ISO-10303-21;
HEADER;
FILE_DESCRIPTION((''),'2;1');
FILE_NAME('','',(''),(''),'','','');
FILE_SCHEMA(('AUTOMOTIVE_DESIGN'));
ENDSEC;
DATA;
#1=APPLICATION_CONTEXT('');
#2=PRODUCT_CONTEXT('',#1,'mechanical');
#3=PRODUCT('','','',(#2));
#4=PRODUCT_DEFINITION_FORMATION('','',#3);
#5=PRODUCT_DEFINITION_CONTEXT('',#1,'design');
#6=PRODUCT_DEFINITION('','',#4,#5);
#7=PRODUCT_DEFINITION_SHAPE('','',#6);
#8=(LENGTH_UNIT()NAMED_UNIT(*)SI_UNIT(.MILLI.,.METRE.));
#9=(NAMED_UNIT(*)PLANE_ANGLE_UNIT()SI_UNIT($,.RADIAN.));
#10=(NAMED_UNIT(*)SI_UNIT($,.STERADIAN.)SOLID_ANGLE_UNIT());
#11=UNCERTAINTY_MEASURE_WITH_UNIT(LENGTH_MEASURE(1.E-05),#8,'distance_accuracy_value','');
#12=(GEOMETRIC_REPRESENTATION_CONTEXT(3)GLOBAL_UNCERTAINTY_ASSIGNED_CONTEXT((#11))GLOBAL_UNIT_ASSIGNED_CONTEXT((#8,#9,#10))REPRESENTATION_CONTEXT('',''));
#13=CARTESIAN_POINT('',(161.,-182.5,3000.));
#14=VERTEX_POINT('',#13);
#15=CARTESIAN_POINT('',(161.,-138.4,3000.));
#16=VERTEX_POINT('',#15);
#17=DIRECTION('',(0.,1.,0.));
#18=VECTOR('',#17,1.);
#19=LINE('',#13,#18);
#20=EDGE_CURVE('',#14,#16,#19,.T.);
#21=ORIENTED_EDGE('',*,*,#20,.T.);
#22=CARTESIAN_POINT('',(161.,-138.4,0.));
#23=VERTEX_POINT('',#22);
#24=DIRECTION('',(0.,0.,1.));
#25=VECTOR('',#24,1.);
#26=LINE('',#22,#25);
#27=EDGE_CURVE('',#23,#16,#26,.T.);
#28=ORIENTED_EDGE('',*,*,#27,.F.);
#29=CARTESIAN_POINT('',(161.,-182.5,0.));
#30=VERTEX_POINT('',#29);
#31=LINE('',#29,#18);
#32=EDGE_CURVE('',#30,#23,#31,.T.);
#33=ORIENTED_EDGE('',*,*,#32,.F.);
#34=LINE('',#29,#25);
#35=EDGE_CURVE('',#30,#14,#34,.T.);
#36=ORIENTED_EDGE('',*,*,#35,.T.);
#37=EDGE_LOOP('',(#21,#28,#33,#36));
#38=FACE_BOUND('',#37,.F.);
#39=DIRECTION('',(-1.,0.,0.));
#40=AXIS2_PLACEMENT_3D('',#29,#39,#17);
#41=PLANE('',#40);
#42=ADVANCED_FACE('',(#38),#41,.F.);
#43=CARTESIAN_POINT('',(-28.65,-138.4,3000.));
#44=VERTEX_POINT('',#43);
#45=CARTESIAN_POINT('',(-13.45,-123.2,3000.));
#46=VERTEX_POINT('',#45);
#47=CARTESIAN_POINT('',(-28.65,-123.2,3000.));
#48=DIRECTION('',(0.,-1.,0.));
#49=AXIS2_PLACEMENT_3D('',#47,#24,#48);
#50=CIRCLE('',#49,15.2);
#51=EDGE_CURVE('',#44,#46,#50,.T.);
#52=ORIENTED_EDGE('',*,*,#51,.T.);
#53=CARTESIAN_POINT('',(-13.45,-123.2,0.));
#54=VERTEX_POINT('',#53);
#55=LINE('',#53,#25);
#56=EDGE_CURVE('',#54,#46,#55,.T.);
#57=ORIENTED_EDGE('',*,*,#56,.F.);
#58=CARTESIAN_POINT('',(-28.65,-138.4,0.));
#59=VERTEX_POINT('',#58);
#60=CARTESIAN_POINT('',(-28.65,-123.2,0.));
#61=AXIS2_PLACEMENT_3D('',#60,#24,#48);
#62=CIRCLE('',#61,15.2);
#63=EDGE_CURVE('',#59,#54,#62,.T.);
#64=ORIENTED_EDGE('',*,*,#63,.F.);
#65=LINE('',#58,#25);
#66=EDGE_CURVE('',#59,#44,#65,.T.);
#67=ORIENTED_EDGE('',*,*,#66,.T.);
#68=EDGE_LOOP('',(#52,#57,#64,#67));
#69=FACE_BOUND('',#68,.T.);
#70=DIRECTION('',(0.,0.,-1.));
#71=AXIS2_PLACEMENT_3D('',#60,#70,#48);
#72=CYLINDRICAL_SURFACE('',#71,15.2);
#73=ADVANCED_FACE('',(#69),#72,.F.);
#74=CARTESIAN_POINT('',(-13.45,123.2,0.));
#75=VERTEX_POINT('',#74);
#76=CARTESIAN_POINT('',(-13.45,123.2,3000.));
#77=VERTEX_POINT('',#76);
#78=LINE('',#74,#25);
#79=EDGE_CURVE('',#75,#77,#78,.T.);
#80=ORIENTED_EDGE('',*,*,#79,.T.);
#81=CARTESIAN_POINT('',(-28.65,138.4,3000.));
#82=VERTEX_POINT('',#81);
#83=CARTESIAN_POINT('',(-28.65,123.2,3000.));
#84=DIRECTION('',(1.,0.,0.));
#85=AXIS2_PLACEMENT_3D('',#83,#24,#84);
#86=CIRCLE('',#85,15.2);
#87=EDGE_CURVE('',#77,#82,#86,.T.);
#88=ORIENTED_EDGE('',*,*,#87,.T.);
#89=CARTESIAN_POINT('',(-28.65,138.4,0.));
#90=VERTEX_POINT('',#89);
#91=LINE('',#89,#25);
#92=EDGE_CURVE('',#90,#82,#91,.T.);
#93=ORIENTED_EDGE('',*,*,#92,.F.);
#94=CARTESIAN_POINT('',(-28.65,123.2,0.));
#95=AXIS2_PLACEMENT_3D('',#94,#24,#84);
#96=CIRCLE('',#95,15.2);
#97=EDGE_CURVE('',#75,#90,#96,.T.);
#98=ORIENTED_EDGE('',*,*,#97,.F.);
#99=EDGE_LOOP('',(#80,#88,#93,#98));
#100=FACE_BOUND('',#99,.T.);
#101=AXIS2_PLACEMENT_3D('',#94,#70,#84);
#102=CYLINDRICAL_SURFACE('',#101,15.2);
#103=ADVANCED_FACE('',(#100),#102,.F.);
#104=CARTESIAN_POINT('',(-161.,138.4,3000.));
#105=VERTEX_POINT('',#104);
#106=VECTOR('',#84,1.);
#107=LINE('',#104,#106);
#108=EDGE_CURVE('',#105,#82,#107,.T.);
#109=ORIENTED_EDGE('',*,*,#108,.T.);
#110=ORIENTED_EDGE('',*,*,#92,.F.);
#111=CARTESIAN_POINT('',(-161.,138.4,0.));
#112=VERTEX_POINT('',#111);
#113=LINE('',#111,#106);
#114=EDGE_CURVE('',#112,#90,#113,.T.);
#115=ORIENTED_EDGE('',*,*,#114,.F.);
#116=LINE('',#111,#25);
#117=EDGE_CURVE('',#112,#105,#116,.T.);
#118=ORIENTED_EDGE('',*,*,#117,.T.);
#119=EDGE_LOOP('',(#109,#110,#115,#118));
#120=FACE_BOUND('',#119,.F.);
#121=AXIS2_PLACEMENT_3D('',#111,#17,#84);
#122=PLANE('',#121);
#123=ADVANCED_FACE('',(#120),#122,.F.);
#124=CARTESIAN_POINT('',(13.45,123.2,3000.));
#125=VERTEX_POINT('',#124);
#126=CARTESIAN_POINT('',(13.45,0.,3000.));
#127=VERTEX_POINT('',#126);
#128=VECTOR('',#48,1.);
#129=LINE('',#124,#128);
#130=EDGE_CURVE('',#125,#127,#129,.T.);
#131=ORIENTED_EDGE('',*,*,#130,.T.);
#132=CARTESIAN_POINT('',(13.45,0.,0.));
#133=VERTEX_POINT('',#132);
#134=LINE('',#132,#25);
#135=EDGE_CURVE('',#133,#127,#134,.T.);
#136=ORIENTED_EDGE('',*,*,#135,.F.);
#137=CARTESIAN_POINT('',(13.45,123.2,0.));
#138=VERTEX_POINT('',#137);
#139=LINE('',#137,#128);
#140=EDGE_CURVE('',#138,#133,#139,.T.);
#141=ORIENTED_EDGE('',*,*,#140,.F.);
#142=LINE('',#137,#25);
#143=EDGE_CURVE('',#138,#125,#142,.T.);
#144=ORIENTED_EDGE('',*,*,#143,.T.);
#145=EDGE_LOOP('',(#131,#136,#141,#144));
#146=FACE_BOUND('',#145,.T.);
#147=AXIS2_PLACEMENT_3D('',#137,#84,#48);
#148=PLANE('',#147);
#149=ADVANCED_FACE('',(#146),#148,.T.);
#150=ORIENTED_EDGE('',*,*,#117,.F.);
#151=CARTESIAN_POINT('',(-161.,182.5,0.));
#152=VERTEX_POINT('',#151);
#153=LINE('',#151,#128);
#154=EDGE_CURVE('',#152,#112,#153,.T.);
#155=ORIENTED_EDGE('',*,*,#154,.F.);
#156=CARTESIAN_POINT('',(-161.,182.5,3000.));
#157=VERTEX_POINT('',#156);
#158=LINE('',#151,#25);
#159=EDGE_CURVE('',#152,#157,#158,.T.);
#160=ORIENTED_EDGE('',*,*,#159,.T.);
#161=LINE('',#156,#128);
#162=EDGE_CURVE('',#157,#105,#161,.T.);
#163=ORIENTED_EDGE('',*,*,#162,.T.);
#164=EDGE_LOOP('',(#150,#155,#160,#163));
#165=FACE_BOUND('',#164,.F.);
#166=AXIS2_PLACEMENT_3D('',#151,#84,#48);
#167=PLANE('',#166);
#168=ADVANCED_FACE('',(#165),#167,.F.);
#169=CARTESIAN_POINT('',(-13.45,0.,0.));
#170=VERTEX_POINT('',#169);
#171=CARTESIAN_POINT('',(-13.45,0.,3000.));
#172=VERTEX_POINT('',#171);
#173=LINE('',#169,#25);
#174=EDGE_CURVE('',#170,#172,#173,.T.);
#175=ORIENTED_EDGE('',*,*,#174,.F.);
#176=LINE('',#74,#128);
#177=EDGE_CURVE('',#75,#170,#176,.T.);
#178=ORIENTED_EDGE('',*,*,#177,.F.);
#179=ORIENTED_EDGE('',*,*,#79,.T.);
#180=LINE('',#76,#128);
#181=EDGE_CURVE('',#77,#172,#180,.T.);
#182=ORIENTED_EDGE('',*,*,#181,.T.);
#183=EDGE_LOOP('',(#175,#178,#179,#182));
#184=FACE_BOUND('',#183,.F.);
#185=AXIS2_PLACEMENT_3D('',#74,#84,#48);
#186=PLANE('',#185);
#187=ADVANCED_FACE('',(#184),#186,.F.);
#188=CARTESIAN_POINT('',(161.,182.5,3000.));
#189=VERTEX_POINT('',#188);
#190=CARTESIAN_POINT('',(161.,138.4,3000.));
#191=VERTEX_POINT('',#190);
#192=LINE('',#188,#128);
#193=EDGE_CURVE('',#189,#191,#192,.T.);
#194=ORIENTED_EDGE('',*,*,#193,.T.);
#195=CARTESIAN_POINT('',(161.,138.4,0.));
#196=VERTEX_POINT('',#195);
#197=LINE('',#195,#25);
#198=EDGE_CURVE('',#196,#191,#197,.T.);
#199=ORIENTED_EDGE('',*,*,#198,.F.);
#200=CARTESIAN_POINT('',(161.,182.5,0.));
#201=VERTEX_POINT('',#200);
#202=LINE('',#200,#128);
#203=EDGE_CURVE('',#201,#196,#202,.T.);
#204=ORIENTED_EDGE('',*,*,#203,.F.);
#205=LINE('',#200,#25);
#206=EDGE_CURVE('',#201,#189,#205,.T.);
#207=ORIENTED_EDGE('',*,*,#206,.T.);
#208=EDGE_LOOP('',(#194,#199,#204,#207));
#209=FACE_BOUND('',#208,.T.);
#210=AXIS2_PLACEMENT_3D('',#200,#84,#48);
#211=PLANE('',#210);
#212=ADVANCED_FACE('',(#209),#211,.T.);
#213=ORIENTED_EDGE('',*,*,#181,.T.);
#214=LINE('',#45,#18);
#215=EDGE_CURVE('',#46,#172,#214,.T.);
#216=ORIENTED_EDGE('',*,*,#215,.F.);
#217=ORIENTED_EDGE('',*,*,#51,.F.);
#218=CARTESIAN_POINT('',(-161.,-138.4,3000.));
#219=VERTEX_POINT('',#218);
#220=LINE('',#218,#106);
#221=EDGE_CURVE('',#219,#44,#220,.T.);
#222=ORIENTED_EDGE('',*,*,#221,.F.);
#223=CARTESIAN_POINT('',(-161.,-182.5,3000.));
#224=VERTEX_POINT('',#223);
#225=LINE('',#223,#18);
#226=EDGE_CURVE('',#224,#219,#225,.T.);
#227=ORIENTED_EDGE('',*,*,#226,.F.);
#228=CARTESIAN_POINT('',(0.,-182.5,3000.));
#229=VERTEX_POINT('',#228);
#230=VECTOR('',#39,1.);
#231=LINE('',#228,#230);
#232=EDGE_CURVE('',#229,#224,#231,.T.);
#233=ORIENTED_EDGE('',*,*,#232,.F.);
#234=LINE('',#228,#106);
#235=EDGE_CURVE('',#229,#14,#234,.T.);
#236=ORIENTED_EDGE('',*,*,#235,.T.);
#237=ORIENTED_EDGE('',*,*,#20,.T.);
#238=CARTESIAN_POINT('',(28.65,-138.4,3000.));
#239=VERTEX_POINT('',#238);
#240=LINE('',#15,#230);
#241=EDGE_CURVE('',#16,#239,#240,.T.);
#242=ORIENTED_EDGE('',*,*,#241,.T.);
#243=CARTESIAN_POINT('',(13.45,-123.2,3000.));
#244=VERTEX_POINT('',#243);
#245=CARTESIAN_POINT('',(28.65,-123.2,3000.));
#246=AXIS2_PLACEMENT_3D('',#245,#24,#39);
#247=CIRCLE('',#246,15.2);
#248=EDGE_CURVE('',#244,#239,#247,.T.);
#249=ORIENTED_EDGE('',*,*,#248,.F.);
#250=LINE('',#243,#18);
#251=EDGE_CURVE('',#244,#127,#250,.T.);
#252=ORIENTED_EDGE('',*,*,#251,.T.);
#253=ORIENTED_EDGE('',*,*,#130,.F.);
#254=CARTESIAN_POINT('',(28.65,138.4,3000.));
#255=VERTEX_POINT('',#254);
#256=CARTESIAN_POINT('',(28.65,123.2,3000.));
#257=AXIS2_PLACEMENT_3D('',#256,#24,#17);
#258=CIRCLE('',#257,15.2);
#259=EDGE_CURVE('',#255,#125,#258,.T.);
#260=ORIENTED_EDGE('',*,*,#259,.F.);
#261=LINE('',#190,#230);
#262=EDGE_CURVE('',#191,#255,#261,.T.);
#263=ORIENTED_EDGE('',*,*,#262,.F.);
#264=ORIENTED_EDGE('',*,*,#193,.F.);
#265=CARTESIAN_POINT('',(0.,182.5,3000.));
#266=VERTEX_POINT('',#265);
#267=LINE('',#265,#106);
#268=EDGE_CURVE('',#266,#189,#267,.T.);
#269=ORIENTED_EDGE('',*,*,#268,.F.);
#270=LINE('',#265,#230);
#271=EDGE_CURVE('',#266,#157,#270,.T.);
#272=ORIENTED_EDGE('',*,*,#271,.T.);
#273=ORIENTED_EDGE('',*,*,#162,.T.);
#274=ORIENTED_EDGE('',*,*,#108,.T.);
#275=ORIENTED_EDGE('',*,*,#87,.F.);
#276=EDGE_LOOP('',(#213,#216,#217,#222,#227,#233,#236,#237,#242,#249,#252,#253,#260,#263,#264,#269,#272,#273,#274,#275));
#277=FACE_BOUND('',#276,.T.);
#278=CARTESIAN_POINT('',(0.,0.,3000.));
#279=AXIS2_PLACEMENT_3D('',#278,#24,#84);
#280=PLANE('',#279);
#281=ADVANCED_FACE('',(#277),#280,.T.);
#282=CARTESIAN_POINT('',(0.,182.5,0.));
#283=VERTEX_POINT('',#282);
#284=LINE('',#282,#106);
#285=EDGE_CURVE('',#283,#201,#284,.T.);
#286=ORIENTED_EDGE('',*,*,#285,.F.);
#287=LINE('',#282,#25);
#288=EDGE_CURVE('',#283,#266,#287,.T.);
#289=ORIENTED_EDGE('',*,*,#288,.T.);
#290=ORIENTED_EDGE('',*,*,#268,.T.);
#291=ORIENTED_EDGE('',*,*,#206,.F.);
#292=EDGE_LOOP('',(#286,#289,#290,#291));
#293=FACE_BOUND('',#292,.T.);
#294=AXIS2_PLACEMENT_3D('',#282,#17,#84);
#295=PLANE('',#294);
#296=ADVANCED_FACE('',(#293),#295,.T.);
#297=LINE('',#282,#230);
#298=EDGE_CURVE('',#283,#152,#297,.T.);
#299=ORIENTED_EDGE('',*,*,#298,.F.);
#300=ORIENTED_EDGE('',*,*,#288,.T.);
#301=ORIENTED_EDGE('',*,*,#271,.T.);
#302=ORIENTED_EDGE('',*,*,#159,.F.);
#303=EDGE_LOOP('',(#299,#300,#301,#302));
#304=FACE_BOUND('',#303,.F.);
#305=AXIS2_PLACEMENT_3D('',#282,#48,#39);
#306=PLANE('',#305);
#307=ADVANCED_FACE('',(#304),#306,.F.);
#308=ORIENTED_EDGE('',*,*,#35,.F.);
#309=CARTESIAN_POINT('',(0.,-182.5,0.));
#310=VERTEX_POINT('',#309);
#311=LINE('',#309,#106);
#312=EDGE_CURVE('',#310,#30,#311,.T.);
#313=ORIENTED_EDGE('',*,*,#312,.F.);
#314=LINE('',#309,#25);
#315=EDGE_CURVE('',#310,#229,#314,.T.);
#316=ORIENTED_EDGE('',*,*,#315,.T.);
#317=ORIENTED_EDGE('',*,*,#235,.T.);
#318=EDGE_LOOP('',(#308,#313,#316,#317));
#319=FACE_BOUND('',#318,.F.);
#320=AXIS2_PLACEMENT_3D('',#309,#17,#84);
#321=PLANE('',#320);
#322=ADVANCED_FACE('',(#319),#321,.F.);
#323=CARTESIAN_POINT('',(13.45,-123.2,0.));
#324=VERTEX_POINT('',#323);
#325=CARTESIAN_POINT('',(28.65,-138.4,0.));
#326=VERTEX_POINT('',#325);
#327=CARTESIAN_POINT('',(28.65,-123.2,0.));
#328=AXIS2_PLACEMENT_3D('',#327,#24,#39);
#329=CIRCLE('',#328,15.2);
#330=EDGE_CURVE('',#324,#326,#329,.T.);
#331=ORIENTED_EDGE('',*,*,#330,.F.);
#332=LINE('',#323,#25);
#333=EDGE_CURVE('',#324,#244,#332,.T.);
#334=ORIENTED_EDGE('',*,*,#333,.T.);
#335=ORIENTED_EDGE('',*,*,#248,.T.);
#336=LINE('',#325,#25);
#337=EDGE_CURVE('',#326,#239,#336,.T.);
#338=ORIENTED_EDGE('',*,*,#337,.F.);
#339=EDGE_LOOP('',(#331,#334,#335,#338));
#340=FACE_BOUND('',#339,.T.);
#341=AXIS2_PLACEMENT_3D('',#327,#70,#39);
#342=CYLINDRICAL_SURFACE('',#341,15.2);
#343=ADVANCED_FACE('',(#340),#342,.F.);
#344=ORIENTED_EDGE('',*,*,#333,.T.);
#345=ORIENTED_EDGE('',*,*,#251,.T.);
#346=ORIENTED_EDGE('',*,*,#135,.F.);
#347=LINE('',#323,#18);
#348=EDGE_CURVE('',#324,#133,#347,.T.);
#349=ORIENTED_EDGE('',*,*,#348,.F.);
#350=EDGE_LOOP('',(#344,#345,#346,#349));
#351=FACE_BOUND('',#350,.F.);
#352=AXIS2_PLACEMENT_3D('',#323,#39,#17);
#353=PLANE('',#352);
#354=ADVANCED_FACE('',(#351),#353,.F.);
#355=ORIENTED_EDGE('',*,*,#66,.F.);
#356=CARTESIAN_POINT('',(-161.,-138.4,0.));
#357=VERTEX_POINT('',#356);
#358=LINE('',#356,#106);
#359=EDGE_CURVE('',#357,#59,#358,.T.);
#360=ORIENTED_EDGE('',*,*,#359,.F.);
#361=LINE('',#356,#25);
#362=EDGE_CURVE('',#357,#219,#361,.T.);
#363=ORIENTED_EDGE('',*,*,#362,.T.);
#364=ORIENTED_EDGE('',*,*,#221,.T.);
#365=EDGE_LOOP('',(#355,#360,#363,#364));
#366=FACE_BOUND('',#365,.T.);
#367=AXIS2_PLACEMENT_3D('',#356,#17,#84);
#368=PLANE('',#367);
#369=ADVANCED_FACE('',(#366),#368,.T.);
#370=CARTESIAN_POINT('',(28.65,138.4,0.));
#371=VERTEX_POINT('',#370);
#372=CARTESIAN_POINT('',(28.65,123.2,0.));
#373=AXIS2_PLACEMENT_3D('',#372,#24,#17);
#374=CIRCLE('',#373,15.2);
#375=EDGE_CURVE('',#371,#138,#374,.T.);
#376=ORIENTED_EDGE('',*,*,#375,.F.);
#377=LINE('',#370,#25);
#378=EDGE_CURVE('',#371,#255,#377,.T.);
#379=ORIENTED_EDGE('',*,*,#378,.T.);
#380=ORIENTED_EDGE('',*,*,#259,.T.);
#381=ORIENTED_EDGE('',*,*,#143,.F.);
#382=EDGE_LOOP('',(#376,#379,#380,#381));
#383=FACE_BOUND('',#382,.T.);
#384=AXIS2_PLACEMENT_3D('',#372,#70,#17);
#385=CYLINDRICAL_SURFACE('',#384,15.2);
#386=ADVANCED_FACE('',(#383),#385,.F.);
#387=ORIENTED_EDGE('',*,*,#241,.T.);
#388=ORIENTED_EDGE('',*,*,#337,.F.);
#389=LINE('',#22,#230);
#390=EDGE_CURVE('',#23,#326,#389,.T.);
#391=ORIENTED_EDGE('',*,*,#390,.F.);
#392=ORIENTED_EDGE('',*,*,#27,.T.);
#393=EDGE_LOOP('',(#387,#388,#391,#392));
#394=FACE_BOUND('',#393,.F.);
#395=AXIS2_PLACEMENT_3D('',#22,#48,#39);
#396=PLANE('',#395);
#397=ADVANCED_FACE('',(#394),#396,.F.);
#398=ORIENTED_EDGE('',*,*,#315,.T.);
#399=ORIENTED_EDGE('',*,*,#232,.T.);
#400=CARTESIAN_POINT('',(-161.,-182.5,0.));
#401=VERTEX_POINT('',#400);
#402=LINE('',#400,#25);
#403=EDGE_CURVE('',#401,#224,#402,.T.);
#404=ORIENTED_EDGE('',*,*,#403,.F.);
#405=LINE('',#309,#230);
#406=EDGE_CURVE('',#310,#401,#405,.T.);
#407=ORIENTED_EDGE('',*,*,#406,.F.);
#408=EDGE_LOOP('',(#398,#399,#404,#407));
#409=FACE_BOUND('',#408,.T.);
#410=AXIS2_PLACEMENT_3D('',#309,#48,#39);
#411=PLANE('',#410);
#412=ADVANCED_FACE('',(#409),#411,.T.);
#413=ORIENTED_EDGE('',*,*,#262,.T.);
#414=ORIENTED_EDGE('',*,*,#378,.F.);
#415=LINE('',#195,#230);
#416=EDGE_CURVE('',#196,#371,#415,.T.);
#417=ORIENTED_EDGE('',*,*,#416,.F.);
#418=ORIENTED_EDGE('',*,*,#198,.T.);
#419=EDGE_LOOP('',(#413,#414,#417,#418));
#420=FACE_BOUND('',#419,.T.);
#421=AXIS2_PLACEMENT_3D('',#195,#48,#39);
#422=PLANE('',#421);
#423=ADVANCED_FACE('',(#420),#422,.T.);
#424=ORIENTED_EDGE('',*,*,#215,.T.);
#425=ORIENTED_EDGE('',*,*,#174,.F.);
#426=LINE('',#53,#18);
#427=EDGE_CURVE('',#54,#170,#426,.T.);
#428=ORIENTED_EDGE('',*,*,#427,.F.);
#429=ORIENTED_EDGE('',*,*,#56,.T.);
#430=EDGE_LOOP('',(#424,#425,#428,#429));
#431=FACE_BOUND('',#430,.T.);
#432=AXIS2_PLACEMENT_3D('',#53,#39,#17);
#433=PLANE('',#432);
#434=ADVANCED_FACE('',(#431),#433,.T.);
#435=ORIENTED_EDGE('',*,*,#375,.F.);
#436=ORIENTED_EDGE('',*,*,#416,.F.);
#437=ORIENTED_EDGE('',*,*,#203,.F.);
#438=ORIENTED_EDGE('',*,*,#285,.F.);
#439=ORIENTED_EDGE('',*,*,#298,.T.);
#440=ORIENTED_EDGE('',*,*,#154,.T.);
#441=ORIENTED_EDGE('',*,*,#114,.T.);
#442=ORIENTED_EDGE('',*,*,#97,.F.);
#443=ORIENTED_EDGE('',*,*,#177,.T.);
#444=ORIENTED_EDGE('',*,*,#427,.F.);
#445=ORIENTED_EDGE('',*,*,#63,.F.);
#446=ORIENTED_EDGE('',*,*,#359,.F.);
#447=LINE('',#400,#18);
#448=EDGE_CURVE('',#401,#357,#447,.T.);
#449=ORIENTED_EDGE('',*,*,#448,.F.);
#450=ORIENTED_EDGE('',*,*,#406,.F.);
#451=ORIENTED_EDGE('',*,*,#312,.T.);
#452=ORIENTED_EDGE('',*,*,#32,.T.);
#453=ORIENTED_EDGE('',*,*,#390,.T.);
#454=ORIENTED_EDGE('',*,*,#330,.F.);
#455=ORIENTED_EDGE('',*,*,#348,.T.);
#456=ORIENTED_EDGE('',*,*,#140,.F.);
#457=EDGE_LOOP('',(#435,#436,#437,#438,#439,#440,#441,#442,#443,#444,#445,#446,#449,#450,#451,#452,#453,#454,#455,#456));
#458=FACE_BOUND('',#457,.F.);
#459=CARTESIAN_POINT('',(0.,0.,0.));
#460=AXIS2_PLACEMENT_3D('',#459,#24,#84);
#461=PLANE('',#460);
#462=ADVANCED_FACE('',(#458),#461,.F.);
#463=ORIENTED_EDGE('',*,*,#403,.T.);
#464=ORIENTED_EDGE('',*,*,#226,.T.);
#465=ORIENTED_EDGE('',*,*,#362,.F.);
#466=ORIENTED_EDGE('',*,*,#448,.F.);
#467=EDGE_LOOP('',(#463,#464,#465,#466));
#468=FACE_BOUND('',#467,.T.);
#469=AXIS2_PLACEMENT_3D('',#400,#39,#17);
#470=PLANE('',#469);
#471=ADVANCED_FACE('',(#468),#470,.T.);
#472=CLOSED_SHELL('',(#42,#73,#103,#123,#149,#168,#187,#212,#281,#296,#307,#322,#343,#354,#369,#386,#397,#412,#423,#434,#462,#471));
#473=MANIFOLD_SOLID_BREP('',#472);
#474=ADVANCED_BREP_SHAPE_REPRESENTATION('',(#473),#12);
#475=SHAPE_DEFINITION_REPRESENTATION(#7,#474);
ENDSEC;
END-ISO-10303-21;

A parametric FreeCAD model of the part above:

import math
import FreeCAD as App
import Part
import Sketcher

doc = App.newDocument("Part")
body = doc.addObject("PartDesign::Body", "Body")

# Sketch on XY plane
sketch1 = body.newObject("Sketcher::SketchObject", "Sketch")
sketch1.AttachmentSupport = (doc.getObject("XY_Plane"), [""])
sketch1.MapMode = "FlatFace"
sketch1.addGeometry([
    Part.LineSegment(App.Vector(-161, -138, 0), App.Vector(-161, -182, 0)),  # 0
    Part.LineSegment(App.Vector(-161, -182, 0), App.Vector(161, -182, 0)),  # 1
    Part.LineSegment(App.Vector(161, -182, 0), App.Vector(161, -138, 0)),  # 2
    Part.LineSegment(App.Vector(161, -138, 0), App.Vector(29, -138, 0)),  # 3
    Part.ArcOfCircle(Part.Circle(App.Vector(29, -123, 0), App.Vector(0, 0, 1), 15), math.radians(180), math.radians(270)),  # 4
    Part.LineSegment(App.Vector(13, -123, 0), App.Vector(13, 123, 0)),  # 5
    Part.ArcOfCircle(Part.Circle(App.Vector(29, 123, 0), App.Vector(0, 0, 1), 15), math.radians(90), math.radians(180)),  # 6
    Part.LineSegment(App.Vector(29, 138, 0), App.Vector(161, 138, 0)),  # 7
    Part.LineSegment(App.Vector(161, 138, 0), App.Vector(161, 182, 0)),  # 8
    Part.LineSegment(App.Vector(161, 182, 0), App.Vector(-161, 182, 0)),  # 9
    Part.LineSegment(App.Vector(-161, 182, 0), App.Vector(-161, 138, 0)),  # 10
    Part.LineSegment(App.Vector(-161, 138, 0), App.Vector(-29, 138, 0)),  # 11
    Part.ArcOfCircle(Part.Circle(App.Vector(-29, 123, 0), App.Vector(0, 0, 1), 15), math.radians(0), math.radians(90)),  # 12
    Part.LineSegment(App.Vector(-13, 123, 0), App.Vector(-13, -123, 0)),  # 13
    Part.ArcOfCircle(Part.Circle(App.Vector(-29, -123, 0), App.Vector(0, 0, 1), 15), math.radians(-90), math.radians(0)),  # 14
    Part.LineSegment(App.Vector(-29, -138, 0), App.Vector(-161, -138, 0)),  # 15
], False)
sketch1.addConstraint([
    Sketcher.Constraint("Coincident", 0, 2, 1, 1),
    Sketcher.Constraint("Coincident", 1, 2, 2, 1),
    Sketcher.Constraint("Coincident", 2, 2, 3, 1),
    Sketcher.Constraint("Tangent", 3, 2, 4, 2),
    Sketcher.Constraint("Tangent", 4, 1, 5, 1),
    Sketcher.Constraint("Tangent", 5, 2, 6, 2),
    Sketcher.Constraint("Tangent", 6, 1, 7, 1),
    Sketcher.Constraint("Coincident", 7, 2, 8, 1),
    Sketcher.Constraint("Coincident", 8, 2, 9, 1),
    Sketcher.Constraint("Coincident", 9, 2, 10, 1),
    Sketcher.Constraint("Coincident", 10, 2, 11, 1),
    Sketcher.Constraint("Tangent", 11, 2, 12, 2),
    Sketcher.Constraint("Tangent", 12, 1, 13, 1),
    Sketcher.Constraint("Tangent", 13, 2, 14, 2),
    Sketcher.Constraint("Tangent", 14, 1, 15, 1),
    Sketcher.Constraint("Coincident", 15, 2, 0, 1),
    Sketcher.Constraint("Vertical", 0),
    Sketcher.Constraint("Horizontal", 1),
    Sketcher.Constraint("Vertical", 2),
    Sketcher.Constraint("Horizontal", 3),
    Sketcher.Constraint("Vertical", 5),
    Sketcher.Constraint("Horizontal", 7),
    Sketcher.Constraint("Vertical", 8),
    Sketcher.Constraint("Horizontal", 9),
    Sketcher.Constraint("Vertical", 10),
    Sketcher.Constraint("Horizontal", 11),
    Sketcher.Constraint("Vertical", 13),
    Sketcher.Constraint("Horizontal", 15),
    Sketcher.Constraint("Equal", 4, 6),
    Sketcher.Constraint("Equal", 6, 12),
    Sketcher.Constraint("Equal", 12, 14),
    Sketcher.Constraint("Symmetric", 4, 3, 12, 3, -1, 1),
    Sketcher.Constraint("Symmetric", 0, 2, 8, 2, -1, 1),
    Sketcher.Constraint("Symmetric", 7, 2, 10, 2, -2),
    Sketcher.Constraint("Symmetric", 2, 2, 15, 2, -2),
    Sketcher.Constraint("Radius", 4, 15.2),
    Sketcher.Constraint("DistanceY", 0, 2, 0, 1, 44.1),
    Sketcher.Constraint("DistanceX", 0, 2, -1, 1, 161.0),
    Sketcher.Constraint("DistanceY", 0, 2, -1, 1, 182.5),
    Sketcher.Constraint("DistanceX", -1, 1, 4, 1, 13.45),
])
pad1 = body.newObject("PartDesign::Pad", "Pad")
pad1.Profile = sketch1
pad1.Length = 3000

doc.recompute()
